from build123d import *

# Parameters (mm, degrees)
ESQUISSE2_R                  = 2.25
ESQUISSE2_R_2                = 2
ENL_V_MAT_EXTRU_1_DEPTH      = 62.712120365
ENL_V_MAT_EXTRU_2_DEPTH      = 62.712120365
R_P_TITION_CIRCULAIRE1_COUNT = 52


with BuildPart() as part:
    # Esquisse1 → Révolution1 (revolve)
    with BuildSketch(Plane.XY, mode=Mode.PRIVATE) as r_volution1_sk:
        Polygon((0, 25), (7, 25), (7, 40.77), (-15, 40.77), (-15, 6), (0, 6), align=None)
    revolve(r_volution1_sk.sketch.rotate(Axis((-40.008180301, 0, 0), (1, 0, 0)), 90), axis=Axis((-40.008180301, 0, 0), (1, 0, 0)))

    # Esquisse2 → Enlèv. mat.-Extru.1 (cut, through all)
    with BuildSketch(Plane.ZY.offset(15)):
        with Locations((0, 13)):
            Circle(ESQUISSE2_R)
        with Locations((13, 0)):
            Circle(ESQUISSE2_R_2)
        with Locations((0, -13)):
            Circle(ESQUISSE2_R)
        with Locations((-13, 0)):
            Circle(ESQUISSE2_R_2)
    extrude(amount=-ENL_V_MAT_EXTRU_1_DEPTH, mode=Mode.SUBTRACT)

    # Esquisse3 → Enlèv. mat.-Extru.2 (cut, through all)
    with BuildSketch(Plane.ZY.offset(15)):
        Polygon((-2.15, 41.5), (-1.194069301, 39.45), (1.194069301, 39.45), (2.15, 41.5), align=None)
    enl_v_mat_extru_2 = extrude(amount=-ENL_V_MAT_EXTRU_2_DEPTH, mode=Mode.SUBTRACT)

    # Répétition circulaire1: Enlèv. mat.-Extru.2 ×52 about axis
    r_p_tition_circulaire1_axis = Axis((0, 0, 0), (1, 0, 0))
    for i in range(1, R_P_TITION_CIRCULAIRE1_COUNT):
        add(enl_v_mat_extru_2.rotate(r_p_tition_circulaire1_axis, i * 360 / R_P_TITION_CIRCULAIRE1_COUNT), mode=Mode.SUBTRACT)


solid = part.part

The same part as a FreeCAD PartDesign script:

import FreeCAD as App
import Part
import Sketcher

V = App.Vector
Q = App.Units.Quantity


def add_polygon(sketch, points):
    """Adds a closed chain of lines whose ends are joined by coincident constraints."""
    first, n = sketch.GeometryCount, len(points)
    for a, b in zip(points, points[1:] + points[:1]):
        sketch.addGeometry(Part.LineSegment(App.Vector(*a, 0), App.Vector(*b, 0)), False)
    for i in range(n):
        sketch.addConstraint(Sketcher.Constraint("Coincident", first + i, 2, first + (i + 1) % n, 1))

doc = App.newDocument("Part")
body = doc.addObject("PartDesign::Body", "Body")

sketch1 = doc.addObject("Sketcher::SketchObject", "Sketch")
body.addObject(sketch1)
sketch1.AttachmentSupport = (doc.XY_Plane, [""])
sketch1.MapMode = "FlatFace"
add_polygon(sketch1, [(0, 25), (7, 25), (7, 40.77), (-15, 40.77), (-15, 6), (0, 6)])
sketch1.addConstraint(Sketcher.Constraint("Horizontal", 0))
sketch1.addConstraint(Sketcher.Constraint("Vertical", 1))
sketch1.addConstraint(Sketcher.Constraint("Horizontal", 2))
sketch1.addConstraint(Sketcher.Constraint("Vertical", 3))
sketch1.addConstraint(Sketcher.Constraint("Horizontal", 4))
sketch1.addConstraint(Sketcher.Constraint("Vertical", 5))
sketch1.addConstraint(Sketcher.Constraint("PointOnObject", 4, 2, -2))
sketch1.addConstraint(Sketcher.Constraint("DistanceX", 0, 1, 0, 2, 7.0))
sketch1.addConstraint(Sketcher.Constraint("DistanceX", 2, 2, 2, 1, 22.0))
sketch1.addConstraint(Sketcher.Constraint("DistanceY", 5, 1, 5, 2, 19.0))
sketch1.addConstraint(Sketcher.Constraint("DistanceY", -1, 1, 0, 2, 25.0))
sketch1.addConstraint(Sketcher.Constraint("DistanceY", 1, 1, 1, 2, 15.77))
revolution = doc.addObject("PartDesign::Revolution", "Revolution")
body.addObject(revolution)
revolution.Profile = sketch1
revolution.ReferenceAxis = (sketch1, ["H_Axis"])
revolution.Angle = 360

sketch2 = doc.addObject("Sketcher::SketchObject", "Sketch001")
body.addObject(sketch2)
sketch2.AttachmentSupport = (doc.YZ_Plane, [""])
sketch2.MapMode = "FlatFace"
sketch2.AttachmentOffset = App.Placement(V(0, 0, -15), App.Rotation())
sketch2.addGeometry(Part.Circle(V(13, 0, 0), V(0, 0, 1), 2.25), False)
sketch2.addGeometry(Part.Circle(V(0, 13, 0), V(0, 0, 1), 2), False)
sketch2.addGeometry(Part.Circle(V(-13, 0, 0), V(0, 0, 1), 2.25), False)
sketch2.addGeometry(Part.Circle(V(0, -13, 0), V(0, 0, 1), 2), False)
sketch2.addConstraint(Sketcher.Constraint("Equal", 0, 2))
sketch2.addConstraint(Sketcher.Constraint("Equal", 1, 3))
sketch2.addConstraint(Sketcher.Constraint("Symmetric", 0, 3, 2, 3, -1, 1))
sketch2.addConstraint(Sketcher.Constraint("Symmetric", 1, 3, 3, 3, -1, 1))
sketch2.addConstraint(Sketcher.Constraint("PointOnObject", 0, 3, -1))
sketch2.addConstraint(Sketcher.Constraint("PointOnObject", 1, 3, -2))
sketch2.addConstraint(Sketcher.Constraint("Diameter", 1, 4.0))
sketch2.addConstraint(Sketcher.Constraint("Diameter", 0, 4.5))
sketch2.addConstraint(Sketcher.Constraint("DistanceX", -1, 1, 0, 3, 13.0))
sketch2.addConstraint(Sketcher.Constraint("DistanceY", -1, 1, 1, 3, 13.0))
pocket1 = doc.addObject("PartDesign::Pocket", "Pocket")
body.addObject(pocket1)
pocket1.Profile = sketch2
pocket1.Type = "ThroughAll"
pocket1.Reversed = True

sketch3 = doc.addObject("Sketcher::SketchObject", "Sketch002")
body.addObject(sketch3)
sketch3.AttachmentSupport = (doc.YZ_Plane, [""])
sketch3.MapMode = "FlatFace"
sketch3.AttachmentOffset = App.Placement(V(0, 0, -15), App.Rotation())
add_polygon(sketch3, [(41.5, -2.15), (39.45, -1.194069), (39.45, 1.194069), (41.5, 2.15)])
sketch3.addConstraint(Sketcher.Constraint("Vertical", 1))
sketch3.addConstraint(Sketcher.Constraint("Vertical", 3))
sketch3.addConstraint(Sketcher.Constraint("Equal", 0, 2))
sketch3.addConstraint(Sketcher.Constraint("Angle", 0, Q("155 deg")))
sketch3.addConstraint(Sketcher.Constraint("DistanceY", 3, 2, 3, 1, 4.3))
sketch3.addConstraint(Sketcher.Constraint("DistanceX", -1, 1, 2, 2, 41.5))
sketch3.addConstraint(Sketcher.Constraint("DistanceX", -1, 1, 0, 2, 39.45))
sketch3.addConstraint(Sketcher.Constraint("DistanceY", -1, 1, 2, 2, 2.15))
pocket2 = doc.addObject("PartDesign::Pocket", "Pocket001")
body.addObject(pocket2)
pocket2.Profile = sketch3
pocket2.Type = "ThroughAll"
pocket2.Reversed = True
doc.recompute()

polarpattern = doc.addObject("PartDesign::PolarPattern", "PolarPattern")
body.addObject(polarpattern)
polarpattern.Originals = [pocket2]
polarpattern.Axis = (doc.X_Axis, [""])
polarpattern.Angle = 360
polarpattern.Occurrences = 52
body.Tip = polarpattern

doc.recompute()
